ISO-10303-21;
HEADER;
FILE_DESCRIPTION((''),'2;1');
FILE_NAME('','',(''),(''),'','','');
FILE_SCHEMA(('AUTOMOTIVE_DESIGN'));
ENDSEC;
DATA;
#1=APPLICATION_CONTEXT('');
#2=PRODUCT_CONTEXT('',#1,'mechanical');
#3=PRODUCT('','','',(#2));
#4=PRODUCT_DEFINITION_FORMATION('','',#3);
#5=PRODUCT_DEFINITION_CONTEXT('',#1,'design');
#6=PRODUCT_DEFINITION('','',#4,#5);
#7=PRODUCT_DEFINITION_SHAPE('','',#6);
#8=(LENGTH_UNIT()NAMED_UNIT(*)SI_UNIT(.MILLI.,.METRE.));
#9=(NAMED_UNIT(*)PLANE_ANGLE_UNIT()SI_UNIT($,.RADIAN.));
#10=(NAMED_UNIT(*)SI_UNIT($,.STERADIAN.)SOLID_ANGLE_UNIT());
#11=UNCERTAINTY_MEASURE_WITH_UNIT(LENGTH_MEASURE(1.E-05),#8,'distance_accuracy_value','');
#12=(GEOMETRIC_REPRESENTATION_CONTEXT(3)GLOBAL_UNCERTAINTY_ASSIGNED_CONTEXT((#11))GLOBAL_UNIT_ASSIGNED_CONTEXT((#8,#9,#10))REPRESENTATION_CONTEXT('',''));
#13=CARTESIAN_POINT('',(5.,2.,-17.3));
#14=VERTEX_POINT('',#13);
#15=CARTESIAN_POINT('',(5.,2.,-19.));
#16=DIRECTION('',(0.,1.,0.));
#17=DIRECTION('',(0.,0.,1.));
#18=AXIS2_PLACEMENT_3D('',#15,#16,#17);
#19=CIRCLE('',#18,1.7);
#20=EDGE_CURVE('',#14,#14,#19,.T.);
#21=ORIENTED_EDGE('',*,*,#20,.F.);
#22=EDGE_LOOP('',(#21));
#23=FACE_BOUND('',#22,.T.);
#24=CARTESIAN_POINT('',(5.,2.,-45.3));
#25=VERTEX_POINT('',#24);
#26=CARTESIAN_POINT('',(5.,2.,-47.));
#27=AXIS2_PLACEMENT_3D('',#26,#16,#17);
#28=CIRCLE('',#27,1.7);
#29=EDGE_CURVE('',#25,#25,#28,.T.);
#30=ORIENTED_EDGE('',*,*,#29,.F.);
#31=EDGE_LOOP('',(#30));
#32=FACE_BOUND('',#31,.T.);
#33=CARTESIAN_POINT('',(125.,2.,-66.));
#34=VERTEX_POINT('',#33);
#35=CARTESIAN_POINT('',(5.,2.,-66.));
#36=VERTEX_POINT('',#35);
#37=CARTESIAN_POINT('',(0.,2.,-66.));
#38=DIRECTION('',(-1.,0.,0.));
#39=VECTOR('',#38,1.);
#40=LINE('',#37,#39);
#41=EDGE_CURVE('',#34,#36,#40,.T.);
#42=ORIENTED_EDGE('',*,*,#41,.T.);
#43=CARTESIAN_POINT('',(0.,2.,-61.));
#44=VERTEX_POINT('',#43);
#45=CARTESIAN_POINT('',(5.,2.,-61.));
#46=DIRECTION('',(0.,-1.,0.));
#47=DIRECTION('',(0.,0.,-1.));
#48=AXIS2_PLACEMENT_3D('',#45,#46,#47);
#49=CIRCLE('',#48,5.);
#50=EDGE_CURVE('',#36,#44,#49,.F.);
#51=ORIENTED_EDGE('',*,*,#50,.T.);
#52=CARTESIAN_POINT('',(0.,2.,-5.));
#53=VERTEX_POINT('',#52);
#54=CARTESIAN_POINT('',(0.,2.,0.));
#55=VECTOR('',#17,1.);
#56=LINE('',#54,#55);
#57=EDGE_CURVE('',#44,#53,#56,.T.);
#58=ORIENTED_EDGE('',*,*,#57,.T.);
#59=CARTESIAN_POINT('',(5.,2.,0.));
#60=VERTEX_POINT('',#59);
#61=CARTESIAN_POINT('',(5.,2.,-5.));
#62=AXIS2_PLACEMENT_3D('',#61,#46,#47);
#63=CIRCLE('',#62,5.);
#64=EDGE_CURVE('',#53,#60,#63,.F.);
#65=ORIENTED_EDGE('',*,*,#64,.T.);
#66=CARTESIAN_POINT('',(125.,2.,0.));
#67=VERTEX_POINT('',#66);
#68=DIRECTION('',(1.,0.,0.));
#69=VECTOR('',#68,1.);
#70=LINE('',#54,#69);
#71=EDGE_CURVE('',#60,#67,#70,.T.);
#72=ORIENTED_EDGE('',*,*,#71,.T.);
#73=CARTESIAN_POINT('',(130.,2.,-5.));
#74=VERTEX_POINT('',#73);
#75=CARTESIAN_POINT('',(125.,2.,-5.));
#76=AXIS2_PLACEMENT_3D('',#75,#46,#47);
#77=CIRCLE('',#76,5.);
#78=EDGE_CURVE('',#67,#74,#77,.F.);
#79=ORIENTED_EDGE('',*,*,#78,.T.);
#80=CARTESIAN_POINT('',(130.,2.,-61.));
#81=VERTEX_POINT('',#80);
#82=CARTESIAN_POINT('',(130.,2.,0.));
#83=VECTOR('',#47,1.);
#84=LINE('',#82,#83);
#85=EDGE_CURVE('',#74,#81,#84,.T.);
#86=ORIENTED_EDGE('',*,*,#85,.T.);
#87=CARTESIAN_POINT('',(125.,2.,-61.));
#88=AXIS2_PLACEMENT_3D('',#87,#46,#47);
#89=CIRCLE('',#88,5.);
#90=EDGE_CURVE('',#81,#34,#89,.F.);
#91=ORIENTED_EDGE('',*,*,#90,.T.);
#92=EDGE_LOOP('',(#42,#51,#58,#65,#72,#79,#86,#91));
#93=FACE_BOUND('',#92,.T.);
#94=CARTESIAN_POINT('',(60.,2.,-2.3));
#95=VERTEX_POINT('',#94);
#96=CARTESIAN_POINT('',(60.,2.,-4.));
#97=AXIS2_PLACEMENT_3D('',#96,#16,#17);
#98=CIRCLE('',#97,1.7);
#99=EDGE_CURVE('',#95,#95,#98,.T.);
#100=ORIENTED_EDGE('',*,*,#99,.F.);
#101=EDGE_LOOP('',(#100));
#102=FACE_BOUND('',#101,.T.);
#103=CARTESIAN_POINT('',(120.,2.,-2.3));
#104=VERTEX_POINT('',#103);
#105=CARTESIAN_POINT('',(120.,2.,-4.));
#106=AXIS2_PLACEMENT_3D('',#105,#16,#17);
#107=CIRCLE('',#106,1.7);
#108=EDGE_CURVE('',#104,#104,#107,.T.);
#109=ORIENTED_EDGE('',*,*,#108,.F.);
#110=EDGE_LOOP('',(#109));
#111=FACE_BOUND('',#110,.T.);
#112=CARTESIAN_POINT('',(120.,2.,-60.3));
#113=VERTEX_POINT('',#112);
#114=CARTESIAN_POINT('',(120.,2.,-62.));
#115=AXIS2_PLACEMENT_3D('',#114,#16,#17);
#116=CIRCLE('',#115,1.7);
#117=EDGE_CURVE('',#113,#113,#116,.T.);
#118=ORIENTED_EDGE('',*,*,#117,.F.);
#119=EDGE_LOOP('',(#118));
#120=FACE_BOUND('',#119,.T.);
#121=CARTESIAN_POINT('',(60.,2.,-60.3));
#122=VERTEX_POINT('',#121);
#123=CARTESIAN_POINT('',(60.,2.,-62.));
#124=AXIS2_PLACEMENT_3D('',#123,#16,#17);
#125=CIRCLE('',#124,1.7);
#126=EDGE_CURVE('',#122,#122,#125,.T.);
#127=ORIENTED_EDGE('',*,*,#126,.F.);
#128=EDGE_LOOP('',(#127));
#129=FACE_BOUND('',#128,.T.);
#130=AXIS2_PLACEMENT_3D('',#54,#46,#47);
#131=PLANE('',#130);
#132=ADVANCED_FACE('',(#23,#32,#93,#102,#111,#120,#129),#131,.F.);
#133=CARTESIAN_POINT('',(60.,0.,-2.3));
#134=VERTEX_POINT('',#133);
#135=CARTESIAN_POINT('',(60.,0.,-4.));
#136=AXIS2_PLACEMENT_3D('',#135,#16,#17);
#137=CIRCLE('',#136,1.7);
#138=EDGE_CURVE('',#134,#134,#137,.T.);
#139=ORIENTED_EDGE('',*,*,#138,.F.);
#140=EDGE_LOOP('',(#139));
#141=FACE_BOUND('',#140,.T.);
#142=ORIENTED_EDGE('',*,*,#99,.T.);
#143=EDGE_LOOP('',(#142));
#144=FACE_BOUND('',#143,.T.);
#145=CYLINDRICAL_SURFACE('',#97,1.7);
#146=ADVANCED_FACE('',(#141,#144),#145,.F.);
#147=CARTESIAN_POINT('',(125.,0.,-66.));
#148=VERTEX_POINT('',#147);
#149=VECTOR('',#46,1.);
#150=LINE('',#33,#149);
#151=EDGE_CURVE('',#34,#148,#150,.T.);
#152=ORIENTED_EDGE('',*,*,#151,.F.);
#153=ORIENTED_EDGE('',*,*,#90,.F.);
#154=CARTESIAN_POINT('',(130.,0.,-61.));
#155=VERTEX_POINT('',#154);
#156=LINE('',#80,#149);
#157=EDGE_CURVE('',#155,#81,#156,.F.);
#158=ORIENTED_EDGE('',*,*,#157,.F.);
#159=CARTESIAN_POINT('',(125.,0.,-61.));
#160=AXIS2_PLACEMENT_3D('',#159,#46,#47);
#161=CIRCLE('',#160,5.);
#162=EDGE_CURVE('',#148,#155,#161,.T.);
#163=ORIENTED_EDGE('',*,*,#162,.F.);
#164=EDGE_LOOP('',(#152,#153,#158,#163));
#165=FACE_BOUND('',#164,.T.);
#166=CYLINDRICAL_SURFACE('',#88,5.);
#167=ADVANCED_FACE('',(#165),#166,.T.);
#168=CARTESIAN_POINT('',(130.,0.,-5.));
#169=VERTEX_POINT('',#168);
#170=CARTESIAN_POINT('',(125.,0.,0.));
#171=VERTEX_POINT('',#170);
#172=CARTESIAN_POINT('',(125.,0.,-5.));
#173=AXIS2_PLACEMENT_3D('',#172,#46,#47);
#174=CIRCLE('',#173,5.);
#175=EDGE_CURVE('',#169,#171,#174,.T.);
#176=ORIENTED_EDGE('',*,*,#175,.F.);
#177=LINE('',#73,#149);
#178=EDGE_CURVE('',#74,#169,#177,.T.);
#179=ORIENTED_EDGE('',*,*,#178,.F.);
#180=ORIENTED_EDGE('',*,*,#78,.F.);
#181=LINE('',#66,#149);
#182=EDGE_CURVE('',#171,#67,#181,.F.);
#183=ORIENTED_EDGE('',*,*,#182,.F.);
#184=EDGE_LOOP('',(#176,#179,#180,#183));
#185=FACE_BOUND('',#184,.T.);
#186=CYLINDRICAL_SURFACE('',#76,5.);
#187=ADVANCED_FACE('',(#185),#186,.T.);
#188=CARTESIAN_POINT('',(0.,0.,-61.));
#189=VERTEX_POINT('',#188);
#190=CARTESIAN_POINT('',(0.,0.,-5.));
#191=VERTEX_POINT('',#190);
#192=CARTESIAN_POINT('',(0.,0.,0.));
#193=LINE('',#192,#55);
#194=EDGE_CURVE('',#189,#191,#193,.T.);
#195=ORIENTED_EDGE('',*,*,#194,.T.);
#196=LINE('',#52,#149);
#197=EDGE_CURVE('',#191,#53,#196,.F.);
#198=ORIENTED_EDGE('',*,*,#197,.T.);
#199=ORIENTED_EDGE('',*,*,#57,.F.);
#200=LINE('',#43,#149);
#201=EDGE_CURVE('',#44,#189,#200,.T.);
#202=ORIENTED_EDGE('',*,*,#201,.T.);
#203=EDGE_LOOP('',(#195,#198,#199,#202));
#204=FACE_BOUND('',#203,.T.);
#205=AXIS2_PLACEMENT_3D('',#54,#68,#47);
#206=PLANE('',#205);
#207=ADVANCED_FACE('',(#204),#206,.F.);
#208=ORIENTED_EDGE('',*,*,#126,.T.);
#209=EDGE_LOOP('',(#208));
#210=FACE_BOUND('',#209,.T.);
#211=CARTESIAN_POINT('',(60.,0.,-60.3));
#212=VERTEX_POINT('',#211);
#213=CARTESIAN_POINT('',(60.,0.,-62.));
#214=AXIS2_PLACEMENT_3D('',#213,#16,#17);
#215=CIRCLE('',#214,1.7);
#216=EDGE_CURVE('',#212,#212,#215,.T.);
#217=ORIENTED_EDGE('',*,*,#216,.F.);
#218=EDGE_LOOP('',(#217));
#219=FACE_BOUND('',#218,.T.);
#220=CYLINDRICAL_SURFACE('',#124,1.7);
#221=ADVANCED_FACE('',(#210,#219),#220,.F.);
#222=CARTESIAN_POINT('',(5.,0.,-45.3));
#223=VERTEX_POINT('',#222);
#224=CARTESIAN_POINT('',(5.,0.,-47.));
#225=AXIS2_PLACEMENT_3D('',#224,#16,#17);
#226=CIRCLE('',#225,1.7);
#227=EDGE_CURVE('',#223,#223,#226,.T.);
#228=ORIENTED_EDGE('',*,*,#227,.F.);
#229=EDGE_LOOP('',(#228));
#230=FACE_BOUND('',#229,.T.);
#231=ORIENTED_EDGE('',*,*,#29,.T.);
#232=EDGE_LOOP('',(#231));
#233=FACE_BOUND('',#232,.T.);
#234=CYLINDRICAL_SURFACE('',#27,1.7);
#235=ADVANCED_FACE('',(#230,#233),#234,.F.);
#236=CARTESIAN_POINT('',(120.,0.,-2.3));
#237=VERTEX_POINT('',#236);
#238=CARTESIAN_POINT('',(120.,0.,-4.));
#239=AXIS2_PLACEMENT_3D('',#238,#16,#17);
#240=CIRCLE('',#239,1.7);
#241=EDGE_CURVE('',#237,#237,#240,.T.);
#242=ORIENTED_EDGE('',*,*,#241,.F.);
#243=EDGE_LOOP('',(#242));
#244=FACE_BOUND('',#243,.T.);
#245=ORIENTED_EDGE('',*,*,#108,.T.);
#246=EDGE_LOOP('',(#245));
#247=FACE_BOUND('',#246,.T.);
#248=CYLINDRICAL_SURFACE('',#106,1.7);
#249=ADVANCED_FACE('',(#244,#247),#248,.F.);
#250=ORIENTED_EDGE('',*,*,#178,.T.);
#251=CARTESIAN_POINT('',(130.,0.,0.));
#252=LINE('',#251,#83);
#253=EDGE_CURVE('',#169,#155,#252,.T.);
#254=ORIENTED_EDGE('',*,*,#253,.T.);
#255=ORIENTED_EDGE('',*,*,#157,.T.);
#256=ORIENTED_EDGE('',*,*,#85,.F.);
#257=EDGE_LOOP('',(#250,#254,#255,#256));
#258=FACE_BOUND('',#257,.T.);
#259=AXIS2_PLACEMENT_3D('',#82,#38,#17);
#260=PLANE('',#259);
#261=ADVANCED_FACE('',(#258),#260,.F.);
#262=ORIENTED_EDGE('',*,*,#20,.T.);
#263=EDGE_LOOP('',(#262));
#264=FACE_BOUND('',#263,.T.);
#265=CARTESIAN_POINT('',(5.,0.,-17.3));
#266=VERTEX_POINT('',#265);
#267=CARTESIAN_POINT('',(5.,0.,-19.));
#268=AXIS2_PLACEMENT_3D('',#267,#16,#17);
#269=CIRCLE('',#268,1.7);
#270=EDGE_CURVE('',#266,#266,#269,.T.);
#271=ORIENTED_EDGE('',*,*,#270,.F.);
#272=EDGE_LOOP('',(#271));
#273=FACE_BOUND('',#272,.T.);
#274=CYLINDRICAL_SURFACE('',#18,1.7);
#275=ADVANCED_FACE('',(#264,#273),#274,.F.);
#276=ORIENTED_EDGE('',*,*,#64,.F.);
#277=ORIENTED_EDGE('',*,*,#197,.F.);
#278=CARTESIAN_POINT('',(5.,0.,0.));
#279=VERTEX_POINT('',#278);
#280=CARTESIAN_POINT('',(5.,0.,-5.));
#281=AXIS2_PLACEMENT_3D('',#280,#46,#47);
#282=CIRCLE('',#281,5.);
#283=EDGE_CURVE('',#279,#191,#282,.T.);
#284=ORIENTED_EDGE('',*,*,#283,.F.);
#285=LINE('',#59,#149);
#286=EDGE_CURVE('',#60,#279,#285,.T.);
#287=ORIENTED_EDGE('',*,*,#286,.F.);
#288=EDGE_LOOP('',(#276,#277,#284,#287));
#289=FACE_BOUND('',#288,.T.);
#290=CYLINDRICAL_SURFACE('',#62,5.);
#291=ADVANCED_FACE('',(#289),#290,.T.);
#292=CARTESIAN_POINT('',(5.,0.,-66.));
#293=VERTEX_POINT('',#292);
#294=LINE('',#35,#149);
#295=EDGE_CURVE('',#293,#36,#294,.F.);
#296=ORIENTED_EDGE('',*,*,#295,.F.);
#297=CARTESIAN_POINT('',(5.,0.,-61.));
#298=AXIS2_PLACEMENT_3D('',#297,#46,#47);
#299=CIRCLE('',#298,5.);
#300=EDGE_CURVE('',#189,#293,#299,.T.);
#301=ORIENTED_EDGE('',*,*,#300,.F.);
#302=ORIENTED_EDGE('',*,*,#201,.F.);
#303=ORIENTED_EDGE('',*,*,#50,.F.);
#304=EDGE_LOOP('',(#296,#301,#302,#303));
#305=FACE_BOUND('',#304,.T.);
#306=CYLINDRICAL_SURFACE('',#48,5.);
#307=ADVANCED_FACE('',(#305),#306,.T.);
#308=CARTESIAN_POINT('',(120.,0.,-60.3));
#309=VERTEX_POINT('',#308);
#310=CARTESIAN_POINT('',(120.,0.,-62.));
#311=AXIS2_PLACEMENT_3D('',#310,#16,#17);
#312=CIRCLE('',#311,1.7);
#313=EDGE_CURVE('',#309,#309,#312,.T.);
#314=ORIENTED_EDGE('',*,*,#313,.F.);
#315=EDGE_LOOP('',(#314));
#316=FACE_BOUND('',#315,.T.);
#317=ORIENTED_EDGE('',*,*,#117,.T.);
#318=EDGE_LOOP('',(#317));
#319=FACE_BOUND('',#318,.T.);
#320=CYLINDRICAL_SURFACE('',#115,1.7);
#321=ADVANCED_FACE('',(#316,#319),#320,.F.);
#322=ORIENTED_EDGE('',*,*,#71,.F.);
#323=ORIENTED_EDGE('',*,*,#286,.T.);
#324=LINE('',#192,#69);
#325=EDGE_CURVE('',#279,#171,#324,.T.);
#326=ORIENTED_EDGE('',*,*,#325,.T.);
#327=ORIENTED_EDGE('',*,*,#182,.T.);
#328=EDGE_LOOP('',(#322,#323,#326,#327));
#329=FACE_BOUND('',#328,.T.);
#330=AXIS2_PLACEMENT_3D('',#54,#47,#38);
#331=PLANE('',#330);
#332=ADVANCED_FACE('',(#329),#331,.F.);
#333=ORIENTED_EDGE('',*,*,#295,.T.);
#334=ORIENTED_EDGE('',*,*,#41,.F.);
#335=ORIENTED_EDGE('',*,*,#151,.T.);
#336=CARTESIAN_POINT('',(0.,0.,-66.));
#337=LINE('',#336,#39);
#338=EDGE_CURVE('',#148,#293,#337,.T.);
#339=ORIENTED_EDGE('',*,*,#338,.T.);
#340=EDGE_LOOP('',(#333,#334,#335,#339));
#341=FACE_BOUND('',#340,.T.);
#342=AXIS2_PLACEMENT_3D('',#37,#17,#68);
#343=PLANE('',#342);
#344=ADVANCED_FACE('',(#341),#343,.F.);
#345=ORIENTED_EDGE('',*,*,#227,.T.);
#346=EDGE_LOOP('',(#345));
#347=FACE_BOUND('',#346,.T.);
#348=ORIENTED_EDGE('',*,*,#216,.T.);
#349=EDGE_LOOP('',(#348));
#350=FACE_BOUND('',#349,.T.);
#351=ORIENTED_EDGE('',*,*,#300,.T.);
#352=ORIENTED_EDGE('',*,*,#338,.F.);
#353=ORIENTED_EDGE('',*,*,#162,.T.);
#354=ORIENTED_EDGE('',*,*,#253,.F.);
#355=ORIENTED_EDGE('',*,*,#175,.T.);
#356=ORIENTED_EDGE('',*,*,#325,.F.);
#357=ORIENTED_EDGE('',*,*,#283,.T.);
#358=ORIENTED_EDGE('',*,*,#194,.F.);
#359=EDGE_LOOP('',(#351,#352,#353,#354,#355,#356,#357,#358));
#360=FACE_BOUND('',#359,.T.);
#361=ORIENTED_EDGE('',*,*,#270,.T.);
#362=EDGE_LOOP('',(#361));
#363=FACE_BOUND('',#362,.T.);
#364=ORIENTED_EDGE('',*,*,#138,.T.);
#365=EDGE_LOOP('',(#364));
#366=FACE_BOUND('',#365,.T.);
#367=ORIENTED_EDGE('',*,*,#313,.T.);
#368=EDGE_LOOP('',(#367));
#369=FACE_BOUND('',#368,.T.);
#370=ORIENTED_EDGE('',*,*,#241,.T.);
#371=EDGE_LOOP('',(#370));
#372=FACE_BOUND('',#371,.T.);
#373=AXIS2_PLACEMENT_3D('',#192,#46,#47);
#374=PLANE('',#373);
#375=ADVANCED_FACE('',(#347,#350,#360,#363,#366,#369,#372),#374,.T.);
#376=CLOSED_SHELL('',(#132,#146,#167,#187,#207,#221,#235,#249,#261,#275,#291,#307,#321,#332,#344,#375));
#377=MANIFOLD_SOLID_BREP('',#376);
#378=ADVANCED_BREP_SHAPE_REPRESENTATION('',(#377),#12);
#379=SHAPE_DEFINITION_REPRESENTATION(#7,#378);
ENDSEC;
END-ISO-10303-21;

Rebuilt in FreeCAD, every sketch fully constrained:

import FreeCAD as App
import Part
import Sketcher


def edges_at(feature, points):
    """Names of the edges that pass closest to the given points."""
    edges = feature.Shape.Edges
    near = lambda p: min(range(len(edges)), key=lambda i: edges[i].distToShape(Part.Vertex(*p))[0])
    return sorted({f"Edge{near(p) + 1}" for p in points})

doc = App.newDocument("Part")
params = doc.addObject("Spreadsheet::Sheet", "Params")
for row, (alias, value) in enumerate([
    ("sketch1_width", "130 mm"),
    ("sketch1_height", "66 mm"),
    ("pad1_length", "2 mm"),
    ("fillet_radius", "5 mm"),
    ("sketch2_diameter", "3.4 mm"),
    ("hole_diameter", "3.4 mm"),
], start=1):
    params.set(f"A{row}", alias)
    params.set(f"B{row}", "=" + value)
    params.setAlias(f"B{row}", alias)

body = doc.addObject("PartDesign::Body", "Body")

# Sketch on XZ plane
sketch1 = body.newObject("Sketcher::SketchObject", "Sketch")
sketch1.AttachmentSupport = (doc.getObject("XZ_Plane"), [""])
sketch1.MapMode = "FlatFace"
sketch1.addGeometry([
    Part.LineSegment(App.Vector(0, -66, 0), App.Vector(0, 0, 0)),
    Part.LineSegment(App.Vector(0, 0, 0), App.Vector(130, 0, 0)),
    Part.LineSegment(App.Vector(130, 0, 0), App.Vector(130, -66, 0)),
    Part.LineSegment(App.Vector(130, -66, 0), App.Vector(0, -66, 0)),
], False)
sketch1.addConstraint([
    Sketcher.Constraint("Coincident", 0, 2, 1, 1),
    Sketcher.Constraint("Coincident", 1, 2, 2, 1),
    Sketcher.Constraint("Coincident", 2, 2, 3, 1),
    Sketcher.Constraint("Coincident", 3, 2, 0, 1),
    Sketcher.Constraint("Vertical", 0),
    Sketcher.Constraint("Horizontal", 1),
    Sketcher.Constraint("Vertical", 2),
    Sketcher.Constraint("Horizontal", 3),
    Sketcher.Constraint("Coincident", 0, 2, -1, 1),
    Sketcher.Constraint("DistanceX", 1, 1, 1, 2, 130.0),
    Sketcher.Constraint("DistanceY", 0, 1, 0, 2, 66.0),
])
sketch1.setExpression("Constraints[9]", "Params.sketch1_width")
sketch1.setExpression("Constraints[10]", "Params.sketch1_height")
pad1 = body.newObject("PartDesign::Pad", "Pad")
pad1.Profile = sketch1
pad1.setExpression("Length", "Params.pad1_length")
pad1.Reversed = True
doc.recompute()

fillet = body.newObject("PartDesign::Fillet", "Fillet")
fillet.Base = (pad1, edges_at(pad1, [
    (0, 1, -66),
    (130, 1, -66),
    (130, 1, 0),
    (0, 1, 0),
]))
fillet.setExpression("Radius", "Params.fillet_radius")

# Sketch on XZ plane
sketch2 = body.newObject("Sketcher::SketchObject", "Sketch001")
sketch2.AttachmentSupport = (doc.getObject("XZ_Plane"), [""])
sketch2.MapMode = "FlatFace"
sketch2.AttachmentOffset = App.Placement(App.Vector(0, 0, -2), App.Rotation())
sketch2.addGeometry([
    Part.Circle(App.Vector(5, -19, 0), App.Vector(0, 0, 1), 1.7),  # 0
    Part.Circle(App.Vector(60, -4, 0), App.Vector(0, 0, 1), 1.7),  # 1
    Part.Circle(App.Vector(120, -4, 0), App.Vector(0, 0, 1), 1.7),  # 2
    Part.Circle(App.Vector(120, -62, 0), App.Vector(0, 0, 1), 1.7),  # 3
    Part.Circle(App.Vector(60, -62, 0), App.Vector(0, 0, 1), 1.7),  # 4
    Part.Circle(App.Vector(5, -47, 0), App.Vector(0, 0, 1), 1.7),  # 5
], False)
sketch2.addConstraint([
    Sketcher.Constraint("Equal", 0, 1),
    Sketcher.Constraint("Equal", 1, 2),
    Sketcher.Constraint("Equal", 2, 3),
    Sketcher.Constraint("Equal", 3, 4),
    Sketcher.Constraint("Equal", 4, 5),
    Sketcher.Constraint("Horizontal", 1, 3, 2, 3),
    Sketcher.Constraint("Horizontal", 3, 3, 4, 3),
    Sketcher.Constraint("Vertical", 2, 3, 3, 3),
    Sketcher.Constraint("Vertical", 1, 3, 4, 3),
    Sketcher.Constraint("Vertical", 0, 3, 5, 3),
    Sketcher.Constraint("Diameter", 0, 3.4),
    Sketcher.Constraint("DistanceX", -1, 1, 0, 3, 5.0),
    Sketcher.Constraint("DistanceY", 0, 3, -1, 1, 19.0),
    Sketcher.Constraint("DistanceX", -1, 1, 1, 3, 60.0),
    Sketcher.Constraint("DistanceY", 1, 3, -1, 1, 4.0),
    Sketcher.Constraint("DistanceX", -1, 1, 2, 3, 120.0),
    Sketcher.Constraint("DistanceY", 3, 3, -1, 1, 62.0),
    Sketcher.Constraint("DistanceY", 5, 3, -1, 1, 47.0),
])
sketch2.setExpression("Constraints[10]", "Params.sketch2_diameter")
doc.recompute()
hole = body.newObject("PartDesign::Hole", "Hole")
hole.Profile = sketch2
hole.ThreadType = "None"
hole.setExpression("Diameter", "Params.hole_diameter")
hole.DepthType = "ThroughAll"
hole.Reversed = True

doc.recompute()
